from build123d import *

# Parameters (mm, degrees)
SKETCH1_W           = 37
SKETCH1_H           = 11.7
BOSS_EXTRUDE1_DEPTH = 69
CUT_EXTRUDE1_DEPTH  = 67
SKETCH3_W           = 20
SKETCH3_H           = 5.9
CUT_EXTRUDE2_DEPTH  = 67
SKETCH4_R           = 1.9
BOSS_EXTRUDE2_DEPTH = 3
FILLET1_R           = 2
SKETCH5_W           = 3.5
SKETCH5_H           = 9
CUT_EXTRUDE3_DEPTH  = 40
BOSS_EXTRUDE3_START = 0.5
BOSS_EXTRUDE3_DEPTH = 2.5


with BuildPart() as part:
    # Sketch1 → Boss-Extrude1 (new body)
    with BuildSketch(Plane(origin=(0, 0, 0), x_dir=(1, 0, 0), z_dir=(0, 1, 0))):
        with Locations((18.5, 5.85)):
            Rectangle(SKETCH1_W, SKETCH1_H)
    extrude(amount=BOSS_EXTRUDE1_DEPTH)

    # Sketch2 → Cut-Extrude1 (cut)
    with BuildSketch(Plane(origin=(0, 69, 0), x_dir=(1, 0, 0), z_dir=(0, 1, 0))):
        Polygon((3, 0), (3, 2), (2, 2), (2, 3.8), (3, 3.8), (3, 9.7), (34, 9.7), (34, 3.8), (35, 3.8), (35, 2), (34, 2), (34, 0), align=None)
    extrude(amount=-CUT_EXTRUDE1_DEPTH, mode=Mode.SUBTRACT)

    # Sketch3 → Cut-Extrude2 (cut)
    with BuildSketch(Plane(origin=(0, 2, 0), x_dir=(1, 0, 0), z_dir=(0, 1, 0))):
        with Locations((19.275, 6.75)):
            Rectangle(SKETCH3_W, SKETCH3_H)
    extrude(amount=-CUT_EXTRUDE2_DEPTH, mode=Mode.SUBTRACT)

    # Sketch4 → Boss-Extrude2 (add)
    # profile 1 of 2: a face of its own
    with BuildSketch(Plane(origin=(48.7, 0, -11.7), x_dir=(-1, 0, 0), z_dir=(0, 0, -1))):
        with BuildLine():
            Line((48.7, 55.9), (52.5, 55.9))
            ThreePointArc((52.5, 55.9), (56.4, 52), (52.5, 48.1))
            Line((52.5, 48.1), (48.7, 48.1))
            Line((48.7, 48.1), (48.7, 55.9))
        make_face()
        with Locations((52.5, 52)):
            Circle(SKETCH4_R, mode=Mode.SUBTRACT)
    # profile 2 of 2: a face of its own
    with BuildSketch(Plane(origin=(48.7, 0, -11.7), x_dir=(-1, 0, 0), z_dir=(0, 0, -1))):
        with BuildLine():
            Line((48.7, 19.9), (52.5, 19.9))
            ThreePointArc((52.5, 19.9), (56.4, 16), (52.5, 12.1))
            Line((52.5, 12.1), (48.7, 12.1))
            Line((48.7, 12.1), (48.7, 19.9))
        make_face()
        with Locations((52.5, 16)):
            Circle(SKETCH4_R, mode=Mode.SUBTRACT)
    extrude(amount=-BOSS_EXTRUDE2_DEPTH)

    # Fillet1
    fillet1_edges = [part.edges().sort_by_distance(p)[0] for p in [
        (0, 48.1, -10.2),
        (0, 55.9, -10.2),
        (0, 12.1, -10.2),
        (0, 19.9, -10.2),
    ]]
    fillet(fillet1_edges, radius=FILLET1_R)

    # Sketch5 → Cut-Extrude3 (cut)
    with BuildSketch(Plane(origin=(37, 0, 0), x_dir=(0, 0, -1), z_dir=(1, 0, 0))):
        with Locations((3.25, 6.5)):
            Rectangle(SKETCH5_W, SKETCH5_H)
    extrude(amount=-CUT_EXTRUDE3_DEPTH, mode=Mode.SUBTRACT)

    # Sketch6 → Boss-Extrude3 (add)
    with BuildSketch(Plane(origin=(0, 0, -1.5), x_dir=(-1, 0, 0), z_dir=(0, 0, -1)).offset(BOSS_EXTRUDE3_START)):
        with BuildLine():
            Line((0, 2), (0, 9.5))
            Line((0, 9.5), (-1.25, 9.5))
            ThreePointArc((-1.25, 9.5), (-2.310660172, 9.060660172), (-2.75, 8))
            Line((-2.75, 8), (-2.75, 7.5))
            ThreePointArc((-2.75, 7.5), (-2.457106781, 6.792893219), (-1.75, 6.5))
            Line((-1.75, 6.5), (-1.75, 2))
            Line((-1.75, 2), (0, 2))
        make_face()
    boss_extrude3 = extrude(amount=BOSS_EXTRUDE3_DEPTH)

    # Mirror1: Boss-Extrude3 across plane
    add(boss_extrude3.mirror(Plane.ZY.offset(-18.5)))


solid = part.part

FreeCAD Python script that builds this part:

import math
import FreeCAD as App
import Part
import Sketcher
Q = App.Units.Quantity


def edges_at(feature, points):
    """Names of the edges that pass closest to the given points."""
    edges = feature.Shape.Edges
    near = lambda p: min(range(len(edges)), key=lambda i: edges[i].distToShape(Part.Vertex(*p))[0])
    return sorted({f"Edge{near(p) + 1}" for p in points})


def add_polygon(sketch, points):
    """Adds a closed chain of lines whose ends are joined by coincident constraints."""
    first, n = sketch.GeometryCount, len(points)
    for a, b in zip(points, points[1:] + points[:1]):
        sketch.addGeometry(Part.LineSegment(App.Vector(*a, 0), App.Vector(*b, 0)), False)
    for i in range(n):
        sketch.addConstraint(Sketcher.Constraint("Coincident", first + i, 2, first + (i + 1) % n, 1))

doc = App.newDocument("Part")
params = doc.addObject("Spreadsheet::Sheet", "Params")
for row, (alias, value) in enumerate([
    ("sketch1_width", "37 mm"),
    ("sketch1_height", "11.7 mm"),
    ("pad1_length", "69 mm"),
    ("sketch2_width", "31 mm"),
    ("sketch2_width2", "1 mm"),
    ("sketch2_height", "2 mm"),
    ("sketch2_height2", "1.8 mm"),
    ("sketch2_height3", "5.9 mm"),
    ("pocket1_length", "67 mm"),
    ("sketch3_width", "20 mm"),
    ("sketch3_height", "5.9 mm"),
    ("pocket2_length", "67 mm"),
    ("sketch4_diameter", "3.8 mm"),
    ("sketch4_radius", "3.9 mm"),
    ("sketch4_width", "3.8 mm"),
    ("pad2_length", "3 mm"),
    ("fillet_radius", "2 mm"),
    ("sketch5_width", "9 mm"),
    ("sketch5_height", "3.5 mm"),
    ("pocket3_length", "40 mm"),
    ("sketch6_radius", "1 mm"),
    ("sketch6_radius2", "1.5 mm"),
    ("sketch6_height", "7.5 mm"),
    ("sketch6_height2", "0.5 mm"),
    ("sketch6_width", "1.25 mm"),
    ("pad3_length", "2.5 mm"),
], start=1):
    params.set(f"A{row}", alias)
    params.set(f"B{row}", "=" + value)
    params.setAlias(f"B{row}", alias)

body = doc.addObject("PartDesign::Body", "Body")

sketch1 = doc.addObject("Sketcher::SketchObject", "Sketch")
body.addObject(sketch1)
sketch1.AttachmentSupport = (doc.XZ_Plane, [""])
sketch1.MapMode = "FlatFace"
add_polygon(sketch1, [(0, -11.7), (0, 0), (37, 0), (37, -11.7)])
sketch1.addConstraint(Sketcher.Constraint("Vertical", 0))
sketch1.addConstraint(Sketcher.Constraint("Horizontal", 1))
sketch1.addConstraint(Sketcher.Constraint("Vertical", 2))
sketch1.addConstraint(Sketcher.Constraint("Horizontal", 3))
sketch1.addConstraint(Sketcher.Constraint("Coincident", 0, 2, -1, 1))
sketch1.addConstraint(Sketcher.Constraint("DistanceX", 1, 1, 1, 2, Q("37 mm")))
sketch1.addConstraint(Sketcher.Constraint("DistanceY", 0, 1, 0, 2, Q("11.7 mm")))
sketch1.setExpression("Constraints[9]", "Params.sketch1_width")
sketch1.setExpression("Constraints[10]", "Params.sketch1_height")
pad1 = doc.addObject("PartDesign::Pad", "Pad")
body.addObject(pad1)
pad1.Profile = sketch1
pad1.setExpression("Length", "Params.pad1_length")
pad1.Reversed = True

sketch2 = doc.addObject("Sketcher::SketchObject", "Sketch001")
body.addObject(sketch2)
sketch2.AttachmentSupport = (doc.XZ_Plane, [""])
sketch2.MapMode = "FlatFace"
sketch2.AttachmentOffset = App.Placement(App.Vector(0, 0, -69), App.Rotation())
add_polygon(sketch2, [(3, -2), (3, 0), (34, 0), (34, -2), (35, -2), (35, -3.8), (34, -3.8), (34, -9.7), (3, -9.7), (3, -3.8), (2, -3.8), (2, -2)])
sketch2.addConstraint(Sketcher.Constraint("Vertical", 0))
sketch2.addConstraint(Sketcher.Constraint("Horizontal", 1))
sketch2.addConstraint(Sketcher.Constraint("Vertical", 2))
sketch2.addConstraint(Sketcher.Constraint("Horizontal", 3))
sketch2.addConstraint(Sketcher.Constraint("Vertical", 4))
sketch2.addConstraint(Sketcher.Constraint("Horizontal", 5))
sketch2.addConstraint(Sketcher.Constraint("Vertical", 6))
sketch2.addConstraint(Sketcher.Constraint("Horizontal", 7))
sketch2.addConstraint(Sketcher.Constraint("Vertical", 8))
sketch2.addConstraint(Sketcher.Constraint("Horizontal", 9))
sketch2.addConstraint(Sketcher.Constraint("Vertical", 10))
sketch2.addConstraint(Sketcher.Constraint("Horizontal", 11))
sketch2.addConstraint(Sketcher.Constraint("PointOnObject", 0, 2, -1))
sketch2.addConstraint(Sketcher.Constraint("Horizontal", 5, 2, 8, 2))
sketch2.addConstraint(Sketcher.Constraint("Horizontal", 3, 2, 10, 2))
sketch2.addConstraint(Sketcher.Constraint("Vertical", 2, 2, 5, 2))
sketch2.addConstraint(Sketcher.Constraint("Vertical", 0, 2, 7, 2))
sketch2.addConstraint(Sketcher.Constraint("Equal", 5, 9))
sketch2.addConstraint(Sketcher.Constraint("DistanceX", 1, 1, 1, 2, Q("31 mm")))
sketch2.addConstraint(Sketcher.Constraint("DistanceX", 3, 1, 3, 2, Q("1 mm")))
sketch2.addConstraint(Sketcher.Constraint("DistanceY", 0, 1, 0, 2, Q("2 mm")))
sketch2.addConstraint(Sketcher.Constraint("DistanceY", 4, 2, 4, 1, Q("1.8 mm")))
sketch2.addConstraint(Sketcher.Constraint("DistanceY", 6, 2, 6, 1, Q("5.9 mm")))
sketch2.addConstraint(Sketcher.Constraint("DistanceX", -1, 1, 0, 2, Q("3 mm")))
sketch2.setExpression("Constraints[30]", "Params.sketch2_width")
sketch2.setExpression("Constraints[31]", "Params.sketch2_width2")
sketch2.setExpression("Constraints[32]", "Params.sketch2_height")
sketch2.setExpression("Constraints[33]", "Params.sketch2_height2")
sketch2.setExpression("Constraints[34]", "Params.sketch2_height3")
pocket1 = doc.addObject("PartDesign::Pocket", "Pocket")
body.addObject(pocket1)
pocket1.Profile = sketch2
pocket1.setExpression("Length", "Params.pocket1_length")
pocket1.Reversed = True

sketch3 = doc.addObject("Sketcher::SketchObject", "Sketch002")
body.addObject(sketch3)
sketch3.AttachmentSupport = (doc.XZ_Plane, [""])
sketch3.MapMode = "FlatFace"
sketch3.AttachmentOffset = App.Placement(App.Vector(0, 0, -2), App.Rotation())
add_polygon(sketch3, [(9.275, -9.7), (9.275, -3.8), (29.275, -3.8), (29.275, -9.7)])
sketch3.addConstraint(Sketcher.Constraint("Vertical", 0))
sketch3.addConstraint(Sketcher.Constraint("Horizontal", 1))
sketch3.addConstraint(Sketcher.Constraint("Vertical", 2))
sketch3.addConstraint(Sketcher.Constraint("Horizontal", 3))
sketch3.addConstraint(Sketcher.Constraint("DistanceX", 1, 1, 1, 2, Q("20 mm")))
sketch3.addConstraint(Sketcher.Constraint("DistanceY", 0, 1, 0, 2, Q("5.9 mm")))
sketch3.addConstraint(Sketcher.Constraint("DistanceY", 0, 2, -1, 1, Q("3.8 mm")))
sketch3.addConstraint(Sketcher.Constraint("DistanceX", -1, 1, 0, 2, Q("9.275 mm")))
sketch3.setExpression("Constraints[8]", "Params.sketch3_width")
sketch3.setExpression("Constraints[9]", "Params.sketch3_height")
pocket2 = doc.addObject("PartDesign::Pocket", "Pocket001")
body.addObject(pocket2)
pocket2.Profile = sketch3
pocket2.setExpression("Length", "Params.pocket2_length")
pocket2.Reversed = True

sketch4 = doc.addObject("Sketcher::SketchObject", "Sketch003")
body.addObject(sketch4)
sketch4.AttachmentSupport = (doc.XY_Plane, [""])
sketch4.MapMode = "FlatFace"
sketch4.AttachmentOffset = App.Placement(App.Vector(0, 0, -11.7), App.Rotation())
sketch4.addGeometry(Part.LineSegment(App.Vector(-3.8, 55.9, 0), App.Vector(0, 55.9, 0)), False)
sketch4.addGeometry(Part.LineSegment(App.Vector(0, 55.9, 0), App.Vector(0, 48.1, 0)), False)
sketch4.addGeometry(Part.LineSegment(App.Vector(0, 48.1, 0), App.Vector(-3.8, 48.1, 0)), False)
sketch4.addGeometry(Part.ArcOfCircle(Part.Circle(App.Vector(-3.8, 52, 0), App.Vector(0, 0, 1), 3.9), math.radians(90), math.radians(270)), False)
sketch4.addGeometry(Part.Circle(App.Vector(-3.8, 52, 0), App.Vector(0, 0, 1), 1.9), False)
sketch4.addGeometry(Part.LineSegment(App.Vector(-3.8, 19.9, 0), App.Vector(0, 19.9, 0)), False)
sketch4.addGeometry(Part.LineSegment(App.Vector(0, 19.9, 0), App.Vector(0, 12.1, 0)), False)
sketch4.addGeometry(Part.LineSegment(App.Vector(0, 12.1, 0), App.Vector(-3.8, 12.1, 0)), False)
sketch4.addGeometry(Part.ArcOfCircle(Part.Circle(App.Vector(-3.8, 16, 0), App.Vector(0, 0, 1), 3.9), math.radians(90), math.radians(270)), False)
sketch4.addGeometry(Part.Circle(App.Vector(-3.8, 16, 0), App.Vector(0, 0, 1), 1.9), False)
sketch4.addConstraint(Sketcher.Constraint("Coincident", 0, 2, 1, 1))
sketch4.addConstraint(Sketcher.Constraint("Coincident", 1, 2, 2, 1))
sketch4.addConstraint(Sketcher.Constraint("Tangent", 2, 2, 3, 2))
sketch4.addConstraint(Sketcher.Constraint("Tangent", 3, 1, 0, 1))
sketch4.addConstraint(Sketcher.Constraint("Coincident", 5, 2, 6, 1))
sketch4.addConstraint(Sketcher.Constraint("Coincident", 6, 2, 7, 1))
sketch4.addConstraint(Sketcher.Constraint("Tangent", 7, 2, 8, 2))
sketch4.addConstraint(Sketcher.Constraint("Tangent", 8, 1, 5, 1))
sketch4.addConstraint(Sketcher.Constraint("Horizontal", 0))
sketch4.addConstraint(Sketcher.Constraint("Vertical", 1))
sketch4.addConstraint(Sketcher.Constraint("Horizontal", 2))
sketch4.addConstraint(Sketcher.Constraint("Horizontal", 5))
sketch4.addConstraint(Sketcher.Constraint("Vertical", 6))
sketch4.addConstraint(Sketcher.Constraint("Horizontal", 7))
sketch4.addConstraint(Sketcher.Constraint("Coincident", 4, 3, 3, 3))
sketch4.addConstraint(Sketcher.Constraint("Coincident", 9, 3, 8, 3))
sketch4.addConstraint(Sketcher.Constraint("Equal", 3, 8))
sketch4.addConstraint(Sketcher.Constraint("Equal", 4, 9))
sketch4.addConstraint(Sketcher.Constraint("PointOnObject", 0, 2, -2))
sketch4.addConstraint(Sketcher.Constraint("PointOnObject", 5, 2, -2))
sketch4.addConstraint(Sketcher.Constraint("Vertical", 4, 3, 8, 3))
sketch4.addConstraint(Sketcher.Constraint("Diameter", 4, Q("3.8 mm")))
sketch4.addConstraint(Sketcher.Constraint("Radius", 3, Q("3.9 mm")))
sketch4.addConstraint(Sketcher.Constraint("DistanceX", 0, 1, 0, 2, Q("3.8 mm")))
sketch4.addConstraint(Sketcher.Constraint("DistanceY", -1, 1, 3, 3, Q("52 mm")))
sketch4.addConstraint(Sketcher.Constraint("DistanceY", -1, 1, 8, 3, Q("16 mm")))
sketch4.setExpression("Constraints[21]", "Params.sketch4_diameter")
sketch4.setExpression("Constraints[22]", "Params.sketch4_radius")
sketch4.setExpression("Constraints[23]", "Params.sketch4_width")
pad2 = doc.addObject("PartDesign::Pad", "Pad001")
body.addObject(pad2)
pad2.Profile = sketch4
pad2.setExpression("Length", "Params.pad2_length")
doc.recompute()

fillet = doc.addObject("PartDesign::Fillet", "Fillet")
body.addObject(fillet)
fillet.Base = (pad2, edges_at(pad2, [
    (0, 48.1, -10.2),
    (0, 55.9, -10.2),
    (0, 12.1, -10.2),
    (0, 19.9, -10.2),
]))
fillet.setExpression("Radius", "Params.fillet_radius")

sketch5 = doc.addObject("Sketcher::SketchObject", "Sketch004")
body.addObject(sketch5)
sketch5.AttachmentSupport = (doc.YZ_Plane, [""])
sketch5.MapMode = "FlatFace"
sketch5.AttachmentOffset = App.Placement(App.Vector(0, 0, 37), App.Rotation())
add_polygon(sketch5, [(11, -1.5), (2, -1.5), (2, -5), (11, -5)])
sketch5.addConstraint(Sketcher.Constraint("Horizontal", 0))
sketch5.addConstraint(Sketcher.Constraint("Vertical", 1))
sketch5.addConstraint(Sketcher.Constraint("Horizontal", 2))
sketch5.addConstraint(Sketcher.Constraint("Vertical", 3))
sketch5.addConstraint(Sketcher.Constraint("DistanceX", 0, 2, 0, 1, Q("9 mm")))
sketch5.addConstraint(Sketcher.Constraint("DistanceY", 1, 2, 1, 1, Q("3.5 mm")))
sketch5.addConstraint(Sketcher.Constraint("DistanceX", -1, 1, 0, 2, Q("2 mm")))
sketch5.addConstraint(Sketcher.Constraint("DistanceY", 1, 2, -1, 1, Q("5 mm")))
sketch5.setExpression("Constraints[8]", "Params.sketch5_width")
sketch5.setExpression("Constraints[9]", "Params.sketch5_height")
pocket3 = doc.addObject("PartDesign::Pocket", "Pocket002")
body.addObject(pocket3)
pocket3.Profile = sketch5
pocket3.setExpression("Length", "Params.pocket3_length")

sketch6 = doc.addObject("Sketcher::SketchObject", "Sketch005")
body.addObject(sketch6)
sketch6.AttachmentSupport = (doc.XY_Plane, [""])
sketch6.MapMode = "FlatFace"
sketch6.AttachmentOffset = App.Placement(App.Vector(0, 0, -2), App.Rotation())
sketch6.addGeometry(Part.LineSegment(App.Vector(0, 2, 0), App.Vector(0, 9.5, 0)), False)
sketch6.addGeometry(Part.LineSegment(App.Vector(0, 9.5, 0), App.Vector(1.25, 9.5, 0)), False)
sketch6.addGeometry(Part.ArcOfCircle(Part.Circle(App.Vector(1.25, 8, 0), App.Vector(0, 0, 1), 1.5), math.radians(0), math.radians(90)), False)
sketch6.addGeometry(Part.LineSegment(App.Vector(2.75, 8, 0), App.Vector(2.75, 7.5, 0)), False)
sketch6.addGeometry(Part.ArcOfCircle(Part.Circle(App.Vector(1.75, 7.5, 0), App.Vector(0, 0, 1), 1), math.radians(-90), math.radians(0)), False)
sketch6.addGeometry(Part.LineSegment(App.Vector(1.75, 6.5, 0), App.Vector(1.75, 2, 0)), False)
sketch6.addGeometry(Part.LineSegment(App.Vector(1.75, 2, 0), App.Vector(0, 2, 0)), False)
sketch6.addConstraint(Sketcher.Constraint("Coincident", 0, 2, 1, 1))
sketch6.addConstraint(Sketcher.Constraint("Tangent", 1, 2, 2, 2))
sketch6.addConstraint(Sketcher.Constraint("Tangent", 2, 1, 3, 1))
sketch6.addConstraint(Sketcher.Constraint("Tangent", 3, 2, 4, 2))
sketch6.addConstraint(Sketcher.Constraint("Coincident", 4, 1, 5, 1))
sketch6.addConstraint(Sketcher.Constraint("Coincident", 5, 2, 6, 1))
sketch6.addConstraint(Sketcher.Constraint("Coincident", 6, 2, 0, 1))
sketch6.addConstraint(Sketcher.Constraint("Vertical", 0))
sketch6.addConstraint(Sketcher.Constraint("Horizontal", 1))
sketch6.addConstraint(Sketcher.Constraint("Vertical", 3))
sketch6.addConstraint(Sketcher.Constraint("Vertical", 5))
sketch6.addConstraint(Sketcher.Constraint("Horizontal", 6))
sketch6.addConstraint(Sketcher.Constraint("PointOnObject", 0, 2, -2))
sketch6.addConstraint(Sketcher.Constraint("Radius", 4, Q("1 mm")))
sketch6.addConstraint(Sketcher.Constraint("Radius", 2, Q("1.5 mm")))
sketch6.addConstraint(Sketcher.Constraint("DistanceY", 0, 1, 0, 2, Q("7.5 mm")))
sketch6.addConstraint(Sketcher.Constraint("DistanceY", 3, 2, 3, 1, Q("0.5 mm")))
sketch6.addConstraint(Sketcher.Constraint("DistanceY", -1, 1, 2, 3, Q("8 mm")))
sketch6.addConstraint(Sketcher.Constraint("DistanceX", 4, 1, 3, 2, Q("1 mm")))
sketch6.addConstraint(Sketcher.Constraint("DistanceX", 1, 1, 1, 2, Q("1.25 mm")))
sketch6.setExpression("Constraints[13]", "Params.sketch6_radius")
sketch6.setExpression("Constraints[14]", "Params.sketch6_radius2")
sketch6.setExpression("Constraints[15]", "Params.sketch6_height")
sketch6.setExpression("Constraints[16]", "Params.sketch6_height2")
sketch6.setExpression("Constraints[19]", "Params.sketch6_width")
pad3 = doc.addObject("PartDesign::Pad", "Pad002")
body.addObject(pad3)
pad3.Profile = sketch6
pad3.setExpression("Length", "Params.pad3_length")
pad3.Reversed = True
doc.recompute()

datumplane = doc.addObject("PartDesign::Plane", "DatumPlane")
body.addObject(datumplane)
datumplane.AttachmentSupport = (doc.YZ_Plane, [""])
datumplane.MapMode = "FlatFace"
datumplane.AttachmentOffset = App.Placement(App.Vector(0, 0, 18.5), App.Rotation())
mirrored = doc.addObject("PartDesign::Mirrored", "Mirrored")
body.addObject(mirrored)
mirrored.Originals = [pad3]
mirrored.MirrorPlane = (datumplane, [""])
body.Tip = mirrored

doc.recompute()
